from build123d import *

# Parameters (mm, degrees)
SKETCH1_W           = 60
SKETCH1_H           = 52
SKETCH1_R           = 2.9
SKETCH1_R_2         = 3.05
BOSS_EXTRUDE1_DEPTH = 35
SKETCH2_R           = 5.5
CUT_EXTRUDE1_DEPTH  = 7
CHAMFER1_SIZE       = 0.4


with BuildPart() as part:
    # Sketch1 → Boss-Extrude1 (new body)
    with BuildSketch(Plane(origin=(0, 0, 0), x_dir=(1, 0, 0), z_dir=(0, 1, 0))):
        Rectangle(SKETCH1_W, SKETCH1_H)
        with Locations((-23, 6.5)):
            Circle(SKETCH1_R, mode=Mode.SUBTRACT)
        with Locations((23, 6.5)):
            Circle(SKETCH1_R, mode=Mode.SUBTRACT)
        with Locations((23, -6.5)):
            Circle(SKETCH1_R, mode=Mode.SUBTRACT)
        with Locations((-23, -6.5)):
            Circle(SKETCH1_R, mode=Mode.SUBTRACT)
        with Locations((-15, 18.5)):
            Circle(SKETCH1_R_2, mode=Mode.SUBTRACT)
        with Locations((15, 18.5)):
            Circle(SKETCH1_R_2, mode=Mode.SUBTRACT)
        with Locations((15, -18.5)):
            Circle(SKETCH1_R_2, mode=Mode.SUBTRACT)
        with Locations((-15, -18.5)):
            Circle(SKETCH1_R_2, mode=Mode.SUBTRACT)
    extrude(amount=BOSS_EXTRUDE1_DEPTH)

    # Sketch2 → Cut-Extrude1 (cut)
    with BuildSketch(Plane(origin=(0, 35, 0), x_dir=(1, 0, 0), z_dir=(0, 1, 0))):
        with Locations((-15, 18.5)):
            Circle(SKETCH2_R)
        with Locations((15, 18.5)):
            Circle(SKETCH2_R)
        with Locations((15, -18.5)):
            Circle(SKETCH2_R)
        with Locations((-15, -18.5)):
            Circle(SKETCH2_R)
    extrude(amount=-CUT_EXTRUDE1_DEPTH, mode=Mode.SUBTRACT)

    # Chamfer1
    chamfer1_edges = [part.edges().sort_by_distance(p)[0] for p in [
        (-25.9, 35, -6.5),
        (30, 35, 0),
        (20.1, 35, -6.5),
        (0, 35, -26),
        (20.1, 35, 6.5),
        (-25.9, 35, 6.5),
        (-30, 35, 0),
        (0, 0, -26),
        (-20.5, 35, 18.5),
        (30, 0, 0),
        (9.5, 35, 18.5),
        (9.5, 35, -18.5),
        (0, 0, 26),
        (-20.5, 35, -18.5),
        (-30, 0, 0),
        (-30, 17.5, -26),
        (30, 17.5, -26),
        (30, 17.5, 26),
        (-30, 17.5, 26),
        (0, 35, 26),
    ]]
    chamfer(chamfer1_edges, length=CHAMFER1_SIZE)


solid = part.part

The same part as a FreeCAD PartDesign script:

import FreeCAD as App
import Part
import Sketcher

V = App.Vector


def edges_at(feature, points):
    """Names of the edges that pass closest to the given points."""
    edges = feature.Shape.Edges
    near = lambda p: min(range(len(edges)), key=lambda i: edges[i].distToShape(Part.Vertex(*p))[0])
    return sorted({f"Edge{near(p) + 1}" for p in points})

doc = App.newDocument("Part")
body = doc.addObject("PartDesign::Body", "Body")

# Sketch on XZ plane
sketch1 = body.newObject("Sketcher::SketchObject", "Sketch")
sketch1.AttachmentSupport = (doc.getObject("XZ_Plane"), [""])
sketch1.MapMode = "FlatFace"
sketch1.addGeometry([
    Part.LineSegment(V(-30, -26, 0), V(-30, 26, 0)),  # 0
    Part.LineSegment(V(-30, 26, 0), V(30, 26, 0)),  # 1
    Part.LineSegment(V(30, 26, 0), V(30, -26, 0)),  # 2
    Part.LineSegment(V(30, -26, 0), V(-30, -26, 0)),  # 3
    Part.Circle(V(-15, 18.5, 0), V(0, 0, 1), 3),  # 4
    Part.Circle(V(-23, 6.5, 0), V(0, 0, 1), 2.9),  # 5
    Part.Circle(V(15, 18.5, 0), V(0, 0, 1), 3),  # 6
    Part.Circle(V(23, 6.5, 0), V(0, 0, 1), 2.9),  # 7
    Part.Circle(V(-23, -6.5, 0), V(0, 0, 1), 2.9),  # 8
    Part.Circle(V(-15, -18.5, 0), V(0, 0, 1), 3),  # 9
    Part.Circle(V(23, -6.5, 0), V(0, 0, 1), 2.9),  # 10
    Part.Circle(V(15, -18.5, 0), V(0, 0, 1), 3),  # 11
], False)
sketch1.addConstraint([
    Sketcher.Constraint("Coincident", 0, 2, 1, 1),
    Sketcher.Constraint("Coincident", 1, 2, 2, 1),
    Sketcher.Constraint("Coincident", 2, 2, 3, 1),
    Sketcher.Constraint("Coincident", 3, 2, 0, 1),
    Sketcher.Constraint("Vertical", 0),
    Sketcher.Constraint("Horizontal", 1),
    Sketcher.Constraint("Vertical", 2),
    Sketcher.Constraint("Horizontal", 3),
    Sketcher.Constraint("Equal", 4, 6),
    Sketcher.Constraint("Equal", 5, 7),
    Sketcher.Constraint("Equal", 7, 8),
    Sketcher.Constraint("Equal", 6, 9),
    Sketcher.Constraint("Equal", 8, 10),
    Sketcher.Constraint("Equal", 9, 11),
    Sketcher.Constraint("Symmetric", 7, 3, 8, 3, -1, 1),
    Sketcher.Constraint("Symmetric", 6, 3, 9, 3, -1, 1),
    Sketcher.Constraint("Symmetric", 5, 3, 10, 3, -1, 1),
    Sketcher.Constraint("Symmetric", 4, 3, 11, 3, -1, 1),
    Sketcher.Constraint("Symmetric", 0, 2, 2, 2, -1, 1),
    Sketcher.Constraint("Symmetric", 4, 3, 6, 3, -2),
    Sketcher.Constraint("Symmetric", 5, 3, 7, 3, -2),
    Sketcher.Constraint("Diameter", 4, 6.1),
    Sketcher.Constraint("Diameter", 5, 5.8),
    Sketcher.Constraint("DistanceX", 1, 1, 1, 2, 60.0),
    Sketcher.Constraint("DistanceY", 0, 1, 0, 2, 52.0),
    Sketcher.Constraint("DistanceX", 4, 3, -1, 1, 15.0),
    Sketcher.Constraint("DistanceX", 5, 3, -1, 1, 23.0),
    Sketcher.Constraint("DistanceY", 5, 3, 4, 3, 12.0),
    Sketcher.Constraint("DistanceY", 8, 3, 5, 3, 13.0),
])
pad1 = body.newObject("PartDesign::Pad", "Pad")
pad1.Profile = sketch1
pad1.Length = 35
pad1.Reversed = True

# Sketch on XZ plane
sketch2 = body.newObject("Sketcher::SketchObject", "Sketch001")
sketch2.AttachmentSupport = (doc.getObject("XZ_Plane"), [""])
sketch2.MapMode = "FlatFace"
sketch2.AttachmentOffset = App.Placement(V(0, 0, -35), App.Rotation())
sketch2.addGeometry([
    Part.Circle(V(-15, -18, 0), V(0, 0, 1), 6),
    Part.Circle(V(15, -18, 0), V(0, 0, 1), 6),
    Part.Circle(V(15, 18, 0), V(0, 0, 1), 6),
    Part.Circle(V(-15, 18, 0), V(0, 0, 1), 6),
], False)
sketch2.addConstraint([
    Sketcher.Constraint("Equal", 0, 1),
    Sketcher.Constraint("Equal", 1, 2),
    Sketcher.Constraint("Equal", 2, 3),
    Sketcher.Constraint("Symmetric", 0, 3, 2, 3, -1, 1),
    Sketcher.Constraint("Symmetric", 1, 3, 3, 3, -1, 1),
    Sketcher.Constraint("Symmetric", 0, 3, 1, 3, -2),
    Sketcher.Constraint("Diameter", 0, 11.0),
    Sketcher.Constraint("DistanceX", 0, 3, -1, 1, 15.0),
    Sketcher.Constraint("DistanceY", 1, 3, 2, 3, 37.0),
])
pocket1 = body.newObject("PartDesign::Pocket", "Pocket")
pocket1.Profile = sketch2
pocket1.Length = 7
pocket1.Reversed = True
doc.recompute()

chamfer = body.newObject("PartDesign::Chamfer", "Chamfer")
chamfer.Base = (pocket1, edges_at(pocket1, [
    (-25.9, 35, -6.5),
    (30, 35, 0),
    (20.1, 35, -6.5),
    (0, 35, -26),
    (20.1, 35, 6.5),
    (-25.9, 35, 6.5),
    (-30, 35, 0),
    (0, 0, -26),
    (-20.5, 35, 18.5),
    (30, 0, 0),
    (9.5, 35, 18.5),
    (9.5, 35, -18.5),
    (0, 0, 26),
    (-20.5, 35, -18.5),
    (-30, 0, 0),
    (-30, 17.5, -26),
    (30, 17.5, -26),
    (30, 17.5, 26),
    (-30, 17.5, 26),
    (0, 35, 26),
]))
chamfer.Size = 0.4

doc.recompute()
